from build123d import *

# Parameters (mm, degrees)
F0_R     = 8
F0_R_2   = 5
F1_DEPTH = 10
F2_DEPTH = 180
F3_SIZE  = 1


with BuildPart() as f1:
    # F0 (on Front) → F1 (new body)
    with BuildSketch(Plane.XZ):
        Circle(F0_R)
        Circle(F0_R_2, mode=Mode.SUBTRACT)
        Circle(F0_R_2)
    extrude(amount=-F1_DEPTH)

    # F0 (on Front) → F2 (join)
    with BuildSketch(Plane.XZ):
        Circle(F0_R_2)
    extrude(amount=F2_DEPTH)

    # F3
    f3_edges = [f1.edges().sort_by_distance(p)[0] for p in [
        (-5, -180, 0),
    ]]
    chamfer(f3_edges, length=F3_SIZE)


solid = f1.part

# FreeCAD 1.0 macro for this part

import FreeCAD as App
import Part
import Sketcher
from FreeCAD import Vector
Q = App.Units.Quantity


def edges_at(feature, points):
    """Names of the edges that pass closest to the given points."""
    edges = feature.Shape.Edges
    near = lambda p: min(range(len(edges)), key=lambda i: edges[i].distToShape(Part.Vertex(*p))[0])
    return sorted({f"Edge{near(p) + 1}" for p in points})

doc = App.newDocument("Part")
params = doc.addObject("Spreadsheet::Sheet", "Params")
for row, (alias, value) in enumerate([
    ("sketch1_diameter", "16 mm"),
    ("pad1_length", "10 mm"),
    ("sketch2_diameter", "10 mm"),
    ("pad2_length", "180 mm"),
    ("chamfer_size", "1 mm"),
], start=1):
    params.set(f"A{row}", alias)
    params.set(f"B{row}", "=" + value)
    params.setAlias(f"B{row}", alias)

body = doc.addObject("PartDesign::Body", "Body")

# Sketch on XZ plane
sketch1 = body.newObject("Sketcher::SketchObject", "Sketch")
sketch1.AttachmentSupport = (doc.getObject("XZ_Plane"), [""])
sketch1.MapMode = "FlatFace"
sketch1.addGeometry(Part.Circle(Vector(0, 0, 0), Vector(0, 0, 1), 8), False)
sketch1.addConstraint([
    Sketcher.Constraint("Coincident", 0, 3, -1, 1),
    Sketcher.Constraint("Diameter", 0, Q("16 mm")),
])
sketch1.setExpression("Constraints[1]", "Params.sketch1_diameter")
pad1 = body.newObject("PartDesign::Pad", "Pad")
pad1.Profile = sketch1
pad1.setExpression("Length", "Params.pad1_length")
pad1.Reversed = True

# Sketch on XZ plane
sketch2 = body.newObject("Sketcher::SketchObject", "Sketch001")
sketch2.AttachmentSupport = (doc.getObject("XZ_Plane"), [""])
sketch2.MapMode = "FlatFace"
sketch2.addGeometry(Part.Circle(Vector(0, 0, 0), Vector(0, 0, 1), 5), False)
sketch2.addConstraint([
    Sketcher.Constraint("Coincident", 0, 3, -1, 1),
    Sketcher.Constraint("Diameter", 0, Q("10 mm")),
])
sketch2.setExpression("Constraints[1]", "Params.sketch2_diameter")
pad2 = body.newObject("PartDesign::Pad", "Pad001")
pad2.Profile = sketch2
pad2.setExpression("Length", "Params.pad2_length")
doc.recompute()

chamfer = body.newObject("PartDesign::Chamfer", "Chamfer")
chamfer.Base = (pad2, edges_at(pad2, [(-5, -180, 0)]))
chamfer.setExpression("Size", "Params.chamfer_size")

doc.recompute()
